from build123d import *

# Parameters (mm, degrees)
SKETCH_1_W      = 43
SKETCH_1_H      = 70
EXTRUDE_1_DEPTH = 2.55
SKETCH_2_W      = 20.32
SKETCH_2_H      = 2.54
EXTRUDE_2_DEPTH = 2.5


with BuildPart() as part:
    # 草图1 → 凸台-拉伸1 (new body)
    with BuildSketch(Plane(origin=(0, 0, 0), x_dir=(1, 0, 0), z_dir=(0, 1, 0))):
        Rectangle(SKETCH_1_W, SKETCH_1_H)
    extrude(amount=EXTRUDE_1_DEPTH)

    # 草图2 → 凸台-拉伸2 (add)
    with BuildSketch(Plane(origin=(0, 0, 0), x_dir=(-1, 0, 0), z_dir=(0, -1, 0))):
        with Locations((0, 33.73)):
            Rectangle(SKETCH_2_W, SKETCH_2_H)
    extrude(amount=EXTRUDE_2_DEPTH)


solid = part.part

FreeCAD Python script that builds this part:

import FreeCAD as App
import Part
import Sketcher

V = App.Vector
Q = App.Units.Quantity

doc = App.newDocument("Part")
params = doc.addObject("Spreadsheet::Sheet", "Params")
for row, (alias, value) in enumerate([
    ("sketch1_width", "43 mm"),
    ("sketch1_height", "70 mm"),
    ("pad1_length", "2.55 mm"),
    ("sketch2_width", "20.32 mm"),
    ("sketch2_height", "2.54 mm"),
    ("pad2_length", "2.5 mm"),
], start=1):
    params.set(f"A{row}", alias)
    params.set(f"B{row}", "=" + value)
    params.setAlias(f"B{row}", alias)

body = doc.addObject("PartDesign::Body", "Body")

# Sketch on XZ plane
sketch1 = doc.addObject("Sketcher::SketchObject", "Sketch")
body.addObject(sketch1)
sketch1.AttachmentSupport = (doc.XZ_Plane, [""])
sketch1.MapMode = "FlatFace"
sketch1.addGeometry(Part.LineSegment(V(-22, -35, 0), V(-22, 35, 0)), False)
sketch1.addGeometry(Part.LineSegment(V(-22, 35, 0), V(22, 35, 0)), False)
sketch1.addGeometry(Part.LineSegment(V(22, 35, 0), V(22, -35, 0)), False)
sketch1.addGeometry(Part.LineSegment(V(22, -35, 0), V(-22, -35, 0)), False)
sketch1.addConstraint(Sketcher.Constraint("Coincident", 0, 2, 1, 1))
sketch1.addConstraint(Sketcher.Constraint("Coincident", 1, 2, 2, 1))
sketch1.addConstraint(Sketcher.Constraint("Coincident", 2, 2, 3, 1))
sketch1.addConstraint(Sketcher.Constraint("Coincident", 3, 2, 0, 1))
sketch1.addConstraint(Sketcher.Constraint("Vertical", 0))
sketch1.addConstraint(Sketcher.Constraint("Horizontal", 1))
sketch1.addConstraint(Sketcher.Constraint("Vertical", 2))
sketch1.addConstraint(Sketcher.Constraint("Horizontal", 3))
sketch1.addConstraint(Sketcher.Constraint("Symmetric", 0, 2, 2, 2, -1, 1))
sketch1.addConstraint(Sketcher.Constraint("DistanceX", 1, 1, 1, 2, Q("43 mm")))
sketch1.addConstraint(Sketcher.Constraint("DistanceY", 0, 1, 0, 2, Q("70 mm")))
sketch1.setExpression("Constraints[9]", "Params.sketch1_width")
sketch1.setExpression("Constraints[10]", "Params.sketch1_height")
pad1 = doc.addObject("PartDesign::Pad", "Pad")
body.addObject(pad1)
pad1.Profile = sketch1
pad1.setExpression("Length", "Params.pad1_length")
pad1.Reversed = True

# Sketch on XZ plane
sketch2 = doc.addObject("Sketcher::SketchObject", "Sketch001")
body.addObject(sketch2)
sketch2.AttachmentSupport = (doc.XZ_Plane, [""])
sketch2.MapMode = "FlatFace"
sketch2.addGeometry(Part.LineSegment(V(10.2, -35, 0), V(10.2, -32.5, 0)), False)
sketch2.addGeometry(Part.LineSegment(V(10.2, -32.5, 0), V(-10.2, -32.5, 0)), False)
sketch2.addGeometry(Part.LineSegment(V(-10.2, -32.5, 0), V(-10.2, -35, 0)), False)
sketch2.addGeometry(Part.LineSegment(V(-10.2, -35, 0), V(10.2, -35, 0)), False)
sketch2.addConstraint(Sketcher.Constraint("Coincident", 0, 2, 1, 1))
sketch2.addConstraint(Sketcher.Constraint("Coincident", 1, 2, 2, 1))
sketch2.addConstraint(Sketcher.Constraint("Coincident", 2, 2, 3, 1))
sketch2.addConstraint(Sketcher.Constraint("Coincident", 3, 2, 0, 1))
sketch2.addConstraint(Sketcher.Constraint("Vertical", 0))
sketch2.addConstraint(Sketcher.Constraint("Horizontal", 1))
sketch2.addConstraint(Sketcher.Constraint("Vertical", 2))
sketch2.addConstraint(Sketcher.Constraint("Horizontal", 3))
sketch2.addConstraint(Sketcher.Constraint("DistanceY", 2, 2, -1, 1, Q("35 mm")))
sketch2.addConstraint(Sketcher.Constraint("DistanceX", 1, 2, 1, 1, Q("20.32 mm")))
sketch2.addConstraint(Sketcher.Constraint("DistanceY", 0, 1, 0, 2, Q("2.54 mm")))
sketch2.addConstraint(Sketcher.Constraint("DistanceX", -1, 1, 0, 2, Q("10.16 mm")))
sketch2.setExpression("Constraints[9]", "Params.sketch2_width")
sketch2.setExpression("Constraints[10]", "Params.sketch2_height")
pad2 = doc.addObject("PartDesign::Pad", "Pad001")
body.addObject(pad2)
pad2.Profile = sketch2
pad2.setExpression("Length", "Params.pad2_length")

doc.recompute()
